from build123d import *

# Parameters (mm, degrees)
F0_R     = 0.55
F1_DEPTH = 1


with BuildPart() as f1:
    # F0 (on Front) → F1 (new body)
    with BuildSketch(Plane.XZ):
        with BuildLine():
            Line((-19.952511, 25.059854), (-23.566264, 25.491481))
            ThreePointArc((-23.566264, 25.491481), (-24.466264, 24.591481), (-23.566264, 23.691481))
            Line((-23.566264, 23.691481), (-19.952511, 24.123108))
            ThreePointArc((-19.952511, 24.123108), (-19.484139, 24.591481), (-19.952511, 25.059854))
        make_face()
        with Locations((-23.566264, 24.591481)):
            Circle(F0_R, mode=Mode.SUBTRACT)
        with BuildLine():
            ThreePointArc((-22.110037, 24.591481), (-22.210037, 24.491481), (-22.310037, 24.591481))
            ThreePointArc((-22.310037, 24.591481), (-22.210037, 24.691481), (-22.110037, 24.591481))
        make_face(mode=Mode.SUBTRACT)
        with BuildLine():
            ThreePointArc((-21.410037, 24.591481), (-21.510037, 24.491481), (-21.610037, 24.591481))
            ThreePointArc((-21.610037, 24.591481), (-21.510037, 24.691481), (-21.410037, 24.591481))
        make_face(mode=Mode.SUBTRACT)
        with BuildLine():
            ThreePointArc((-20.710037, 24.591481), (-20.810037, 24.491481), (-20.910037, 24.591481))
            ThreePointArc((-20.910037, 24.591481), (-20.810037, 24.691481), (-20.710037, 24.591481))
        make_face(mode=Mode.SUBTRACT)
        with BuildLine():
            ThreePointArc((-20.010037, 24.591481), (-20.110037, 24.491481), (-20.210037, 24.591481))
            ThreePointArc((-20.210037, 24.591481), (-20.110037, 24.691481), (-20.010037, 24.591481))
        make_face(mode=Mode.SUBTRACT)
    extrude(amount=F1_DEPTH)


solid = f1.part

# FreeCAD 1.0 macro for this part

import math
import FreeCAD as App
import Part
import Sketcher

V = App.Vector

doc = App.newDocument("Part")
body = doc.addObject("PartDesign::Body", "Body")

# Sketch on XZ plane
sketch1 = body.newObject("Sketcher::SketchObject", "Sketch")
sketch1.AttachmentSupport = (doc.getObject("XZ_Plane"), [""])
sketch1.MapMode = "FlatFace"
sketch1.addGeometry([
    Part.LineSegment(V(-19.952511, 25.059854, 0), V(-23.566264, 25.491481, 0)),  # 0
    Part.ArcOfCircle(Part.Circle(V(-23.566264, 24.591481, 0), V(0, 0, 1), 0.9), math.radians(90), math.radians(270)),  # 1
    Part.LineSegment(V(-23.566264, 23.691481, 0), V(-19.952511, 24.123108, 0)),  # 2
    Part.ArcOfCircle(Part.Circle(V(-19.952512, 24.591481, 0), V(0, 0, 1), 0.468373), math.radians(-89.999878), math.radians(89.999878)),  # 3
    Part.Circle(V(-22.210037, 24.591481, 0), V(0, 0, 1), 0.1),  # 4
    Part.Circle(V(-21.510037, 24.591481, 0), V(0, 0, 1), 0.1),  # 5
    Part.Circle(V(-20.810037, 24.591481, 0), V(0, 0, 1), 0.1),  # 6
    Part.Circle(V(-20.110037, 24.591481, 0), V(0, 0, 1), 0.1),  # 7
    Part.Circle(V(-23.566264, 24.591481, 0), V(0, 0, 1), 0.55),  # 8
], False)
sketch1.addConstraint([
    Sketcher.Constraint("Coincident", 0, 2, 1, 1),
    Sketcher.Constraint("Coincident", 1, 2, 2, 1),
    Sketcher.Constraint("Coincident", 2, 2, 3, 1),
    Sketcher.Constraint("Coincident", 3, 2, 0, 1),
    Sketcher.Constraint("Coincident", 8, 3, 1, 3),
    Sketcher.Constraint("Equal", 4, 5),
    Sketcher.Constraint("Equal", 5, 6),
    Sketcher.Constraint("Equal", 6, 7),
    Sketcher.Constraint("Horizontal", 1, 3, 3, 3),
    Sketcher.Constraint("Horizontal", 3, 3, 4, 3),
    Sketcher.Constraint("Horizontal", 4, 3, 5, 3),
    Sketcher.Constraint("Horizontal", 5, 3, 6, 3),
    Sketcher.Constraint("Horizontal", 6, 3, 7, 3),
    Sketcher.Constraint("Vertical", 8, 3, 0, 2),
    Sketcher.Constraint("Vertical", 0, 2, 1, 2),
    Sketcher.Constraint("Vertical", 3, 3, 2, 2),
    Sketcher.Constraint("Vertical", 2, 2, 3, 2),
    Sketcher.Constraint("Diameter", 4, 0.2),
    Sketcher.Constraint("Diameter", 8, 1.1),
    Sketcher.Constraint("Radius", 1, 0.9),
    Sketcher.Constraint("DistanceX", 4, 3, 5, 3, 0.7),
    Sketcher.Constraint("DistanceX", 5, 3, 6, 3, 0.7),
    Sketcher.Constraint("DistanceX", 6, 3, 7, 3, 0.7),
    Sketcher.Constraint("Radius", 3, 0.468373),
    Sketcher.Constraint("Distance", 0, 3.639439),
    Sketcher.Constraint("DistanceY", -1, 1, 1, 3, 24.591481),
    Sketcher.Constraint("DistanceX", 3, 3, -1, 1, 19.952512),
    Sketcher.Constraint("DistanceX", 4, 3, -1, 1, 22.210037),
])
pad1 = body.newObject("PartDesign::Pad", "Pad")
pad1.Profile = sketch1
pad1.Length = 1

doc.recompute()
